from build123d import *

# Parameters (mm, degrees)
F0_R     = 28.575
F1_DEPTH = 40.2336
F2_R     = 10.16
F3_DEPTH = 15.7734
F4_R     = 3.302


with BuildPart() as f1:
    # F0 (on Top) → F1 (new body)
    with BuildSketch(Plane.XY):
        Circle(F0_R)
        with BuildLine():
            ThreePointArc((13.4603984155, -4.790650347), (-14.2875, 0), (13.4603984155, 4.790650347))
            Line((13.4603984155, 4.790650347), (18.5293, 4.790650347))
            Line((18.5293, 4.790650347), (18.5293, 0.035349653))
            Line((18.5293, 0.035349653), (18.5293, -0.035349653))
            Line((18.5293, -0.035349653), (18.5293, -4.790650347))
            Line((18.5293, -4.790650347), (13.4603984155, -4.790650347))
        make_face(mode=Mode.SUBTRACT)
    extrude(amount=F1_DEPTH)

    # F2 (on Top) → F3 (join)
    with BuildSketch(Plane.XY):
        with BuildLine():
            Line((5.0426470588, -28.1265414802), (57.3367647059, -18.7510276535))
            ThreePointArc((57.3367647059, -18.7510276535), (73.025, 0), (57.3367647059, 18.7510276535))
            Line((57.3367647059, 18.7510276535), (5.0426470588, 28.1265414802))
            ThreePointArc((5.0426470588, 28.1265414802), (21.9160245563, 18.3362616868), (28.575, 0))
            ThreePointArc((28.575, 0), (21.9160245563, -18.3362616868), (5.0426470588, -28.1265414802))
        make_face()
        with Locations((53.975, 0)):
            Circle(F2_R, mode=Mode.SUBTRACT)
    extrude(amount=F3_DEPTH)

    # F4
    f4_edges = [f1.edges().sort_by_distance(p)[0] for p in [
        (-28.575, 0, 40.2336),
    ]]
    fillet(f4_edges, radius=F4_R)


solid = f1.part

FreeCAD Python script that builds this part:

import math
import FreeCAD as App
import Part
import Sketcher
Q = App.Units.Quantity


def edges_at(feature, points):
    """Names of the edges that pass closest to the given points."""
    edges = feature.Shape.Edges
    near = lambda p: min(range(len(edges)), key=lambda i: edges[i].distToShape(Part.Vertex(*p))[0])
    return sorted({f"Edge{near(p) + 1}" for p in points})

doc = App.newDocument("Part")
params = doc.addObject("Spreadsheet::Sheet", "Params")
for row, (alias, value) in enumerate([
    ("sketch1_diameter", "2.25 in"),
    ("sketch1_radius", "0.5625 in"),
    ("pad1_length", "1.584 in"),
    ("sketch2_diameter", "0.8 in"),
    ("sketch2_radius", "0.75 in"),
    ("sketch2_radius2", "1.125 in"),
    ("pad2_length", "0.621 in"),
    ("fillet_radius", "0.13 in"),
], start=1):
    params.set(f"A{row}", alias)
    params.set(f"B{row}", "=" + value)
    params.setAlias(f"B{row}", alias)

body = doc.addObject("PartDesign::Body", "Body")

sketch1 = doc.addObject("Sketcher::SketchObject", "Sketch")
body.addObject(sketch1)
sketch1.AttachmentSupport = (doc.XY_Plane, [""])
sketch1.MapMode = "FlatFace"
sketch1.addGeometry(Part.Circle(App.Vector(0, 0, 0), App.Vector(0, 0, 1), 28.575), False)
sketch1.addGeometry(Part.LineSegment(App.Vector(18.5293, -4.79065, 0), App.Vector(13.460398, -4.79065, 0)), False)
sketch1.addGeometry(Part.ArcOfCircle(Part.Circle(App.Vector(0, 0, 0), App.Vector(0, 0, 1), 14.2875), math.radians(19.591001), math.radians(340.408999)), False)
sketch1.addGeometry(Part.LineSegment(App.Vector(13.460398, 4.79065, 0), App.Vector(18.5293, 4.79065, 0)), False)
sketch1.addGeometry(Part.LineSegment(App.Vector(18.5293, 4.79065, 0), App.Vector(18.5293, -4.79065, 0)), False)
sketch1.addConstraint(Sketcher.Constraint("Coincident", 1, 2, 2, 2))
sketch1.addConstraint(Sketcher.Constraint("Coincident", 2, 1, 3, 1))
sketch1.addConstraint(Sketcher.Constraint("Coincident", 3, 2, 4, 1))
sketch1.addConstraint(Sketcher.Constraint("Coincident", 4, 2, 1, 1))
sketch1.addConstraint(Sketcher.Constraint("Horizontal", 1))
sketch1.addConstraint(Sketcher.Constraint("Horizontal", 3))
sketch1.addConstraint(Sketcher.Constraint("Vertical", 4))
sketch1.addConstraint(Sketcher.Constraint("Coincident", 0, 3, -1, 1))
sketch1.addConstraint(Sketcher.Constraint("Coincident", 2, 3, -1, 1))
sketch1.addConstraint(Sketcher.Constraint("Vertical", 1, 2, 2, 1))
sketch1.addConstraint(Sketcher.Constraint("Diameter", 0, Q("2.25 in")))
sketch1.addConstraint(Sketcher.Constraint("Radius", 2, Q("0.5625 in")))
sketch1.addConstraint(Sketcher.Constraint("DistanceX", 1, 2, 1, 1, Q("5.068902 mm")))
sketch1.addConstraint(Sketcher.Constraint("DistanceY", 4, 2, 4, 1, Q("9.581301 mm")))
sketch1.setExpression("Constraints[10]", "Params.sketch1_diameter")
sketch1.setExpression("Constraints[11]", "Params.sketch1_radius")
pad1 = doc.addObject("PartDesign::Pad", "Pad")
body.addObject(pad1)
pad1.Profile = sketch1
pad1.setExpression("Length", "Params.pad1_length")

sketch2 = doc.addObject("Sketcher::SketchObject", "Sketch001")
body.addObject(sketch2)
sketch2.AttachmentSupport = (doc.XY_Plane, [""])
sketch2.MapMode = "FlatFace"
sketch2.addGeometry(Part.LineSegment(App.Vector(5.042647, -28.126541, 0), App.Vector(57.336765, -18.751028, 0)), False)
sketch2.addGeometry(Part.ArcOfCircle(Part.Circle(App.Vector(53.975, 0, 0), App.Vector(0, 0, 1), 19.05), math.radians(-79.835751), math.radians(79.835751)), False)
sketch2.addGeometry(Part.LineSegment(App.Vector(57.336765, 18.751028, 0), App.Vector(5.042647, 28.126541, 0)), False)
sketch2.addGeometry(Part.ArcOfCircle(Part.Circle(App.Vector(0, 0, 0), App.Vector(0, 0, 1), 28.575), math.radians(-79.835751), math.radians(79.835751)), False)
sketch2.addGeometry(Part.Circle(App.Vector(53.975, 0, 0), App.Vector(0, 0, 1), 10.16), False)
sketch2.addConstraint(Sketcher.Constraint("Tangent", 0, 2, 1, 1))
sketch2.addConstraint(Sketcher.Constraint("Tangent", 1, 2, 2, 1))
sketch2.addConstraint(Sketcher.Constraint("Tangent", 2, 2, 3, 2))
sketch2.addConstraint(Sketcher.Constraint("Tangent", 3, 1, 0, 1))
sketch2.addConstraint(Sketcher.Constraint("Coincident", 3, 3, -1, 1))
sketch2.addConstraint(Sketcher.Constraint("Coincident", 4, 3, 1, 3))
sketch2.addConstraint(Sketcher.Constraint("PointOnObject", 1, 3, -1))
sketch2.addConstraint(Sketcher.Constraint("Diameter", 4, Q("0.8 in")))
sketch2.addConstraint(Sketcher.Constraint("Radius", 1, Q("0.75 in")))
sketch2.addConstraint(Sketcher.Constraint("Radius", 3, Q("1.125 in")))
sketch2.addConstraint(Sketcher.Constraint("DistanceX", -1, 1, 1, 3, Q("2.125 in")))
sketch2.setExpression("Constraints[7]", "Params.sketch2_diameter")
sketch2.setExpression("Constraints[8]", "Params.sketch2_radius")
sketch2.setExpression("Constraints[9]", "Params.sketch2_radius2")
pad2 = doc.addObject("PartDesign::Pad", "Pad001")
body.addObject(pad2)
pad2.Profile = sketch2
pad2.setExpression("Length", "Params.pad2_length")
doc.recompute()

fillet = doc.addObject("PartDesign::Fillet", "Fillet")
body.addObject(fillet)
fillet.Base = (pad2, edges_at(pad2, [(-28.575, 0, 40.234)]))
fillet.setExpression("Radius", "Params.fillet_radius")

doc.recompute()
